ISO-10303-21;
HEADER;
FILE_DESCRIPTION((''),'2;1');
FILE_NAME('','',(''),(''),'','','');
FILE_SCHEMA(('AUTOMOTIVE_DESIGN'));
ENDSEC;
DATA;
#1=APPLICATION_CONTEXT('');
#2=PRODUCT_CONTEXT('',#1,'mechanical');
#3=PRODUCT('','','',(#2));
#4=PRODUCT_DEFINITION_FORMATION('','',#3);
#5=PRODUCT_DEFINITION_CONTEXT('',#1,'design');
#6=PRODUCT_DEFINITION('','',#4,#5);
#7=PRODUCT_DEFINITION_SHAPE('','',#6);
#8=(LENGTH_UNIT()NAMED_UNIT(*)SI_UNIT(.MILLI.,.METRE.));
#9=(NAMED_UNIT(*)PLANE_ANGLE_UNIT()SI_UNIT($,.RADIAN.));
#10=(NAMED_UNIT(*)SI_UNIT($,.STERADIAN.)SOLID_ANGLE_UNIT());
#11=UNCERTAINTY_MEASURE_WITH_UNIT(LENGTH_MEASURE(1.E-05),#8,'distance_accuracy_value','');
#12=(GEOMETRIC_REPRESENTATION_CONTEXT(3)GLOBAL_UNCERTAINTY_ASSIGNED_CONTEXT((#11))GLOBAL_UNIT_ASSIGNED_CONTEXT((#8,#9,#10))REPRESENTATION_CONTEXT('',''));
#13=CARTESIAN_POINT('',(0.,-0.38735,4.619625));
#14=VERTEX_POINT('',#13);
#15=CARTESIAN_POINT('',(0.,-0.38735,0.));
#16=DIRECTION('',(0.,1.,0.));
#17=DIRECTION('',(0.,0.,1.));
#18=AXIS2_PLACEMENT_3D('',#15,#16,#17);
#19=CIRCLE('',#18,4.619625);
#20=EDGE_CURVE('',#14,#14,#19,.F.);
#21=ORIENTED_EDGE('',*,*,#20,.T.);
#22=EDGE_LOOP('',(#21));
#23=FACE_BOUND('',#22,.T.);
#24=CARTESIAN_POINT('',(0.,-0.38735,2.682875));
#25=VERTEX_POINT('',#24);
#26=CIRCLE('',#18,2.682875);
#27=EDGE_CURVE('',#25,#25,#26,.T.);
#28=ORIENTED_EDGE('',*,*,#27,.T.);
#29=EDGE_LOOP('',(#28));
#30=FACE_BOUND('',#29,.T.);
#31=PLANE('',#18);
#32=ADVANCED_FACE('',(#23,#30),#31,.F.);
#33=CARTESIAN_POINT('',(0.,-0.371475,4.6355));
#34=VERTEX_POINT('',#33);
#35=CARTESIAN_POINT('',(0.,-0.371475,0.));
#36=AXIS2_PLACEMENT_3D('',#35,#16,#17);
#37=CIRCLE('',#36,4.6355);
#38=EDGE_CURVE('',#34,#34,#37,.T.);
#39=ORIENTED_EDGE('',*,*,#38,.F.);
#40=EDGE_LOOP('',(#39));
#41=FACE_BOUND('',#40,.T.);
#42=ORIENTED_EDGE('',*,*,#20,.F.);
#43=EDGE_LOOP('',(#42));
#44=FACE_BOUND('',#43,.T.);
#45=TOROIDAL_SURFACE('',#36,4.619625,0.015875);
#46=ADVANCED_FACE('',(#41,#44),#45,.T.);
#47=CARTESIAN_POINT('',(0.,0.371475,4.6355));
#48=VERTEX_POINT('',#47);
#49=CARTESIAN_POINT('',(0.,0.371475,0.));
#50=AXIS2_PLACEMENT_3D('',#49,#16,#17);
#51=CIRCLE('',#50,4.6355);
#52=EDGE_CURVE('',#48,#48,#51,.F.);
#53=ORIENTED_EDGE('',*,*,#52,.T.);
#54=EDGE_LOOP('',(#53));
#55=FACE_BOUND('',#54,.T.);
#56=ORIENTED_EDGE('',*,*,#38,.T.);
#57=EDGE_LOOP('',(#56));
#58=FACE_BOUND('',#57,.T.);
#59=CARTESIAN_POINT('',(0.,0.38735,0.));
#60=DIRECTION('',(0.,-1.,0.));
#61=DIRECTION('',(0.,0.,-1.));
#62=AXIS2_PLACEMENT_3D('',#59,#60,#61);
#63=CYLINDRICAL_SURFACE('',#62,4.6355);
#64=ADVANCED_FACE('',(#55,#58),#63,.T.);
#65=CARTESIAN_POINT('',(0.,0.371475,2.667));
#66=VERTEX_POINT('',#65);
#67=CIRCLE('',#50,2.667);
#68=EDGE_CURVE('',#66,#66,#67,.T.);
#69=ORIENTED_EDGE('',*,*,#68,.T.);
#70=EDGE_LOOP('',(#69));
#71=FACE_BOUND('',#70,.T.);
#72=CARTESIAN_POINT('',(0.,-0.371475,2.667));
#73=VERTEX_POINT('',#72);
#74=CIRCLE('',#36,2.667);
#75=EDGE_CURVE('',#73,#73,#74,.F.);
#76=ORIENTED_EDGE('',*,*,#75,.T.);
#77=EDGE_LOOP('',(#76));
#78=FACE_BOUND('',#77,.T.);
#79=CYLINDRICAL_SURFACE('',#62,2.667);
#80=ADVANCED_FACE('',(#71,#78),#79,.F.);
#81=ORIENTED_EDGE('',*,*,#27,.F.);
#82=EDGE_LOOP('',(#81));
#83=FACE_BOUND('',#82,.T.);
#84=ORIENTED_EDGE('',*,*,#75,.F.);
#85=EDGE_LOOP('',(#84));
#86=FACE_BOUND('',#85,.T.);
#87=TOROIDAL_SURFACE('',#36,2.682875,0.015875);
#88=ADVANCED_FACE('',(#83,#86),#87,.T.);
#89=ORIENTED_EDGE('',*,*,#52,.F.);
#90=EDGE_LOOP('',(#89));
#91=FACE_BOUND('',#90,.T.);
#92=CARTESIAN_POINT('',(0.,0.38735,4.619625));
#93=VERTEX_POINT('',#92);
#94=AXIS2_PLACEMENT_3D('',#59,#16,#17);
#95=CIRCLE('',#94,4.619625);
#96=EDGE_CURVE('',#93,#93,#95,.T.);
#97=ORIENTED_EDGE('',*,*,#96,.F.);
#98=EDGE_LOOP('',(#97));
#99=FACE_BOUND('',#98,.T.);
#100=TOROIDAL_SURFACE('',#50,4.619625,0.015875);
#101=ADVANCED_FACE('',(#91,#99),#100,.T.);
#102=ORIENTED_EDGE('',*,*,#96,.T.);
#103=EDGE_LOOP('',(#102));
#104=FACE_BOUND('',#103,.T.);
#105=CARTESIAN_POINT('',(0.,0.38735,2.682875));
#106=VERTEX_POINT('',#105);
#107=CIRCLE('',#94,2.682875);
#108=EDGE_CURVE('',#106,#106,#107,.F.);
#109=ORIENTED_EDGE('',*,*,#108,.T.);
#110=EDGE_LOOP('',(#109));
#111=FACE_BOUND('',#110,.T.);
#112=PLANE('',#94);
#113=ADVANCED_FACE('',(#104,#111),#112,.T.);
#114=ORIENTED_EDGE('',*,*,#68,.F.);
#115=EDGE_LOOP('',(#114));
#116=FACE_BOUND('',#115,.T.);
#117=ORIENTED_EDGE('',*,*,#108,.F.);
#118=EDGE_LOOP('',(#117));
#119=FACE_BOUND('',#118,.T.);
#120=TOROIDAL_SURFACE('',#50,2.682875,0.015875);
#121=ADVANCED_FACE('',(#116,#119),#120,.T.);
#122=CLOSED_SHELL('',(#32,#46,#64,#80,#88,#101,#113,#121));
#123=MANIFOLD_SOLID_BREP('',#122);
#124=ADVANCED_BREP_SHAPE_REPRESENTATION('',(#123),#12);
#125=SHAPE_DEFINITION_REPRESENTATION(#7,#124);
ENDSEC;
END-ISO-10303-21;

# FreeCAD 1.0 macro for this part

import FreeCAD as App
import Part
import Sketcher

V = App.Vector
Q = App.Units.Quantity


def edges_at(feature, points):
    """Names of the edges that pass closest to the given points."""
    edges = feature.Shape.Edges
    near = lambda p: min(range(len(edges)), key=lambda i: edges[i].distToShape(Part.Vertex(*p))[0])
    return sorted({f"Edge{near(p) + 1}" for p in points})

doc = App.newDocument("Part")
body = doc.addObject("PartDesign::Body", "Body")

sketch1 = body.newObject("Sketcher::SketchObject", "Sketch")
sketch1.AttachmentSupport = (doc.getObject("XZ_Plane"), [""])
sketch1.MapMode = "FlatFace"
sketch1.addGeometry([
    Part.Circle(V(0, 0, 0), V(0, 0, 1), 4.6355),
    Part.Circle(V(0, 0, 0), V(0, 0, 1), 2.667),
], False)
sketch1.addConstraint([
    Sketcher.Constraint("Coincident", 0, 3, -1, 1),
    Sketcher.Constraint("Coincident", 1, 3, -1, 1),
    Sketcher.Constraint("Diameter", 1, Q("0.21 in")),
    Sketcher.Constraint("Diameter", 0, Q("0.365 in")),
])
pad1 = body.newObject("PartDesign::Pad", "Pad")
pad1.Profile = sketch1
pad1.Length = Q("0.0305 in")
pad1.Midplane = True
doc.recompute()

fillet = body.newObject("PartDesign::Fillet", "Fillet")
fillet.Base = (pad1, edges_at(pad1, [
    (0, -0.387, -4.636),
    (0, 0.387, -4.636),
    (0, -0.387, -2.667),
    (0, 0.387, -2.667),
]))
fillet.Radius = 0.015875

doc.recompute()
